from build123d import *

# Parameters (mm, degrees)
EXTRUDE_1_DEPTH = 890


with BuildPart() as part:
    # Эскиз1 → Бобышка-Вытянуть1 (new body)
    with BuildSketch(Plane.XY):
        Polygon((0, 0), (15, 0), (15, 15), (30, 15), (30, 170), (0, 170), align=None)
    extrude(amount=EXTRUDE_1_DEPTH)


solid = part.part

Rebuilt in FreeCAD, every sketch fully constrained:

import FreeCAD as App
import Part
import Sketcher
Q = App.Units.Quantity

doc = App.newDocument("Part")
params = doc.addObject("Spreadsheet::Sheet", "Params")
for row, (alias, value) in enumerate([
    ("sketch1_width", "15 mm"),
    ("sketch1_height", "155 mm"),
    ("pad1_length", "890 mm"),
], start=1):
    params.set(f"A{row}", alias)
    params.set(f"B{row}", "=" + value)
    params.setAlias(f"B{row}", alias)

body = doc.addObject("PartDesign::Body", "Body")

sketch1 = doc.addObject("Sketcher::SketchObject", "Sketch")
body.addObject(sketch1)
sketch1.AttachmentSupport = (doc.XY_Plane, [""])
sketch1.MapMode = "FlatFace"
sketch1.addGeometry([
    Part.LineSegment(App.Vector(0, 0, 0), App.Vector(15, 0, 0)),
    Part.LineSegment(App.Vector(15, 0, 0), App.Vector(15, 15, 0)),
    Part.LineSegment(App.Vector(15, 15, 0), App.Vector(30, 15, 0)),
    Part.LineSegment(App.Vector(30, 15, 0), App.Vector(30, 170, 0)),
    Part.LineSegment(App.Vector(30, 170, 0), App.Vector(0, 170, 0)),
    Part.LineSegment(App.Vector(0, 170, 0), App.Vector(0, 0, 0)),
], False)
sketch1.addConstraint([
    Sketcher.Constraint("Coincident", 0, 2, 1, 1),
    Sketcher.Constraint("Coincident", 1, 2, 2, 1),
    Sketcher.Constraint("Coincident", 2, 2, 3, 1),
    Sketcher.Constraint("Coincident", 3, 2, 4, 1),
    Sketcher.Constraint("Coincident", 4, 2, 5, 1),
    Sketcher.Constraint("Coincident", 5, 2, 0, 1),
    Sketcher.Constraint("Horizontal", 0),
    Sketcher.Constraint("Vertical", 1),
    Sketcher.Constraint("Horizontal", 2),
    Sketcher.Constraint("Vertical", 3),
    Sketcher.Constraint("Horizontal", 4),
    Sketcher.Constraint("Vertical", 5),
    Sketcher.Constraint("Coincident", 5, 2, -1, 1),
    Sketcher.Constraint("Equal", 0, 2),
    Sketcher.Constraint("Equal", 2, 1),
    Sketcher.Constraint("DistanceX", 0, 1, 0, 2, Q("15 mm")),
    Sketcher.Constraint("DistanceY", 3, 1, 3, 2, Q("155 mm")),
])
sketch1.setExpression("Constraints[15]", "Params.sketch1_width")
sketch1.setExpression("Constraints[16]", "Params.sketch1_height")
pad1 = doc.addObject("PartDesign::Pad", "Pad")
body.addObject(pad1)
pad1.Profile = sketch1
pad1.setExpression("Length", "Params.pad1_length")

doc.recompute()
